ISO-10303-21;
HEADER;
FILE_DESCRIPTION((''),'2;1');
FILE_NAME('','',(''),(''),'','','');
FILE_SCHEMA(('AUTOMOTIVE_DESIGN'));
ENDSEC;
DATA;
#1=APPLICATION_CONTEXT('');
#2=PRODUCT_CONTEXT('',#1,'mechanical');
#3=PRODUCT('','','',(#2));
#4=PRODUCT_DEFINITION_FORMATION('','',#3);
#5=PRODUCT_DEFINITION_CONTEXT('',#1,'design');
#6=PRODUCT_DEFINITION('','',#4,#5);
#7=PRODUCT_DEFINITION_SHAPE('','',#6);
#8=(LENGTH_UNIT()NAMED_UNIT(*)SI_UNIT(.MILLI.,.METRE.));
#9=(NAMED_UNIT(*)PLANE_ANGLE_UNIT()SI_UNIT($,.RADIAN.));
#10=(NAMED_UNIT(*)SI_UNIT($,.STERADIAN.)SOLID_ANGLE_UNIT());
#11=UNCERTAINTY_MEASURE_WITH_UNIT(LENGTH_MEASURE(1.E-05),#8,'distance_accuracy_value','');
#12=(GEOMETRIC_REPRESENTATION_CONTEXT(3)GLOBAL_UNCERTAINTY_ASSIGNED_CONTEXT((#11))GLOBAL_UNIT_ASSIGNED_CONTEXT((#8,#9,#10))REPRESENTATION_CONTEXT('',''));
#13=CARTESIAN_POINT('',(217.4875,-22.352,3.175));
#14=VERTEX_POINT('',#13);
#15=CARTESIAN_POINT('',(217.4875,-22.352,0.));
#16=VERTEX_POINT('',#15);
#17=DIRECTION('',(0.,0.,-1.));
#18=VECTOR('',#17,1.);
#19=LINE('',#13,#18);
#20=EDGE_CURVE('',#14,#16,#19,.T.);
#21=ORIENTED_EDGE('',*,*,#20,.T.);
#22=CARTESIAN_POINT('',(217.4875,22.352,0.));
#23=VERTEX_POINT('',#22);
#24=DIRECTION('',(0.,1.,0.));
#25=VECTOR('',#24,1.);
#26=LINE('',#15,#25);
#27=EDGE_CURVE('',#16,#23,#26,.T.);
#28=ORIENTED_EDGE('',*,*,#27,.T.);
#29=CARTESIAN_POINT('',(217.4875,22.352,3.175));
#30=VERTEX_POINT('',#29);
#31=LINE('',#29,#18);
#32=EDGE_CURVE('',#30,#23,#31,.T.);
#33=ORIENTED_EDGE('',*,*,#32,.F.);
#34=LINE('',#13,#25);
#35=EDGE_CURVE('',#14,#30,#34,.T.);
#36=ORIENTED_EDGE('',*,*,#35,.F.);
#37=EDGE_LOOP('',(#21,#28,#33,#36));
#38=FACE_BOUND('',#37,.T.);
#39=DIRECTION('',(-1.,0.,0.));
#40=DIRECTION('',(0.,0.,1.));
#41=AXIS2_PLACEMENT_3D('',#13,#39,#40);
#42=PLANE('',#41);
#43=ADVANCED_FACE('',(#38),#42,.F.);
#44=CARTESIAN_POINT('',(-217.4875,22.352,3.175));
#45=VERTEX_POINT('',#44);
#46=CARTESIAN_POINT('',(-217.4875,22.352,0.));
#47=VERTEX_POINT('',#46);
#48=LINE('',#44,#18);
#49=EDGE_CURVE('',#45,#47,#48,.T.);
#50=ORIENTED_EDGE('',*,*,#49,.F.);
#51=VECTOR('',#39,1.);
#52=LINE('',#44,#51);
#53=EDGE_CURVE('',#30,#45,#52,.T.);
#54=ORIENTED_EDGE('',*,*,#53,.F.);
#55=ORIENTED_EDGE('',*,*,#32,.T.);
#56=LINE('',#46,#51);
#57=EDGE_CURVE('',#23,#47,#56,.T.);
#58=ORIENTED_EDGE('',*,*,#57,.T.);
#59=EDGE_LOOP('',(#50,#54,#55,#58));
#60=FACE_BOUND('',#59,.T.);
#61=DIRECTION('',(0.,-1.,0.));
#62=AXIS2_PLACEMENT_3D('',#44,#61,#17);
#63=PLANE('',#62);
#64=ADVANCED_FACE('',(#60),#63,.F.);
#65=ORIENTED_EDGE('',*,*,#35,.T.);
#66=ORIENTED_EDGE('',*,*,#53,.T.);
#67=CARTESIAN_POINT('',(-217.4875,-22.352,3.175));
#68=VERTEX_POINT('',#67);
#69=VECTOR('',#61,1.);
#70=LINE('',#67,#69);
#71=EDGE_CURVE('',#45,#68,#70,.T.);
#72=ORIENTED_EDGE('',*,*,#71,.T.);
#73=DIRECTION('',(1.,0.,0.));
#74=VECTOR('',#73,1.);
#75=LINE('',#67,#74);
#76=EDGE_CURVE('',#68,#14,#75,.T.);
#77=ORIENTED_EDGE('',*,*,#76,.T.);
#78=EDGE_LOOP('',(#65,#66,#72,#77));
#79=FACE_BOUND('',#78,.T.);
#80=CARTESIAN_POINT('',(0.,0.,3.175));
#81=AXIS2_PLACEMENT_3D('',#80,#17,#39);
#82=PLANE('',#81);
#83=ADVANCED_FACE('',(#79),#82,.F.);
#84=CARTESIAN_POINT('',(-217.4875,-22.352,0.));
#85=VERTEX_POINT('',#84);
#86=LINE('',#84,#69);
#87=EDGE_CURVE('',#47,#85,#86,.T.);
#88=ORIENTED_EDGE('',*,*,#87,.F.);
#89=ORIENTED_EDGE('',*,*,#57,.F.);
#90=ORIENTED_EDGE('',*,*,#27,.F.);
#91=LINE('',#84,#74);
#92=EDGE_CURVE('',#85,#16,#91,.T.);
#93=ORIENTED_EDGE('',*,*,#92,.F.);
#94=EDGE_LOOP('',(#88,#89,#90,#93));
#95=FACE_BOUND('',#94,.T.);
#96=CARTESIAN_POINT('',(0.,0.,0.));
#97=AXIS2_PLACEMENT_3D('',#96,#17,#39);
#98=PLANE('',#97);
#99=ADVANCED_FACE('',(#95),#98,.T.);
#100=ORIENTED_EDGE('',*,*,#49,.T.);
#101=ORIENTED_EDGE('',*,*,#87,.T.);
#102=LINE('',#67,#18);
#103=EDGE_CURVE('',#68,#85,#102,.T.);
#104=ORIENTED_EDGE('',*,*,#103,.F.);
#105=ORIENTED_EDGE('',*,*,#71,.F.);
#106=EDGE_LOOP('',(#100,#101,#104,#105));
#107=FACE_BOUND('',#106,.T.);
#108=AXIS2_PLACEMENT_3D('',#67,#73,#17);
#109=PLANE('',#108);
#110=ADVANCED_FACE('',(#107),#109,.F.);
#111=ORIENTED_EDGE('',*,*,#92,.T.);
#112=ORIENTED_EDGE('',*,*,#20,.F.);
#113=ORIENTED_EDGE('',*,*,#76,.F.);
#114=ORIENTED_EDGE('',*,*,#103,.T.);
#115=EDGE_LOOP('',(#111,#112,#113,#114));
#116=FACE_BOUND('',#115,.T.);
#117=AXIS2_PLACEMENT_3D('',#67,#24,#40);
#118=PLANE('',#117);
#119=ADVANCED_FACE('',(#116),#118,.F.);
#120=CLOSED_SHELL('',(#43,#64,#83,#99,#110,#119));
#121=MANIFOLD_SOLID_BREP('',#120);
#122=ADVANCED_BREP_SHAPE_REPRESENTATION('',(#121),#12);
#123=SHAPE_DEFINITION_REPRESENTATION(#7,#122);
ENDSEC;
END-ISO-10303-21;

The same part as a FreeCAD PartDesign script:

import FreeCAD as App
import Part
import Sketcher
from FreeCAD import Vector
Q = App.Units.Quantity

doc = App.newDocument("Part")
body = doc.addObject("PartDesign::Body", "Body")

sketch1 = doc.addObject("Sketcher::SketchObject", "Sketch")
body.addObject(sketch1)
sketch1.AttachmentSupport = (doc.XY_Plane, [""])
sketch1.MapMode = "FlatFace"
sketch1.addGeometry(Part.LineSegment(Vector(-217.4875, 22.352, 0), Vector(-217.4875, -22.352, 0)), False)
sketch1.addGeometry(Part.LineSegment(Vector(-217.4875, -22.352, 0), Vector(217.4875, -22.352, 0)), False)
sketch1.addGeometry(Part.LineSegment(Vector(217.4875, -22.352, 0), Vector(217.4875, 22.352, 0)), False)
sketch1.addGeometry(Part.LineSegment(Vector(217.4875, 22.352, 0), Vector(-217.4875, 22.352, 0)), False)
sketch1.addConstraint(Sketcher.Constraint("Coincident", 0, 2, 1, 1))
sketch1.addConstraint(Sketcher.Constraint("Coincident", 1, 2, 2, 1))
sketch1.addConstraint(Sketcher.Constraint("Coincident", 2, 2, 3, 1))
sketch1.addConstraint(Sketcher.Constraint("Coincident", 3, 2, 0, 1))
sketch1.addConstraint(Sketcher.Constraint("Vertical", 0))
sketch1.addConstraint(Sketcher.Constraint("Horizontal", 1))
sketch1.addConstraint(Sketcher.Constraint("Vertical", 2))
sketch1.addConstraint(Sketcher.Constraint("Horizontal", 3))
sketch1.addConstraint(Sketcher.Constraint("Symmetric", 0, 2, 2, 2, -1, 1))
sketch1.addConstraint(Sketcher.Constraint("DistanceY", 0, 2, 0, 1, Q("1.76 in")))
sketch1.addConstraint(Sketcher.Constraint("DistanceX", 1, 1, 1, 2, Q("17.125 in")))
pad1 = doc.addObject("PartDesign::Pad", "Pad")
body.addObject(pad1)
pad1.Profile = sketch1
pad1.Length = Q("0.125 in")

doc.recompute()
